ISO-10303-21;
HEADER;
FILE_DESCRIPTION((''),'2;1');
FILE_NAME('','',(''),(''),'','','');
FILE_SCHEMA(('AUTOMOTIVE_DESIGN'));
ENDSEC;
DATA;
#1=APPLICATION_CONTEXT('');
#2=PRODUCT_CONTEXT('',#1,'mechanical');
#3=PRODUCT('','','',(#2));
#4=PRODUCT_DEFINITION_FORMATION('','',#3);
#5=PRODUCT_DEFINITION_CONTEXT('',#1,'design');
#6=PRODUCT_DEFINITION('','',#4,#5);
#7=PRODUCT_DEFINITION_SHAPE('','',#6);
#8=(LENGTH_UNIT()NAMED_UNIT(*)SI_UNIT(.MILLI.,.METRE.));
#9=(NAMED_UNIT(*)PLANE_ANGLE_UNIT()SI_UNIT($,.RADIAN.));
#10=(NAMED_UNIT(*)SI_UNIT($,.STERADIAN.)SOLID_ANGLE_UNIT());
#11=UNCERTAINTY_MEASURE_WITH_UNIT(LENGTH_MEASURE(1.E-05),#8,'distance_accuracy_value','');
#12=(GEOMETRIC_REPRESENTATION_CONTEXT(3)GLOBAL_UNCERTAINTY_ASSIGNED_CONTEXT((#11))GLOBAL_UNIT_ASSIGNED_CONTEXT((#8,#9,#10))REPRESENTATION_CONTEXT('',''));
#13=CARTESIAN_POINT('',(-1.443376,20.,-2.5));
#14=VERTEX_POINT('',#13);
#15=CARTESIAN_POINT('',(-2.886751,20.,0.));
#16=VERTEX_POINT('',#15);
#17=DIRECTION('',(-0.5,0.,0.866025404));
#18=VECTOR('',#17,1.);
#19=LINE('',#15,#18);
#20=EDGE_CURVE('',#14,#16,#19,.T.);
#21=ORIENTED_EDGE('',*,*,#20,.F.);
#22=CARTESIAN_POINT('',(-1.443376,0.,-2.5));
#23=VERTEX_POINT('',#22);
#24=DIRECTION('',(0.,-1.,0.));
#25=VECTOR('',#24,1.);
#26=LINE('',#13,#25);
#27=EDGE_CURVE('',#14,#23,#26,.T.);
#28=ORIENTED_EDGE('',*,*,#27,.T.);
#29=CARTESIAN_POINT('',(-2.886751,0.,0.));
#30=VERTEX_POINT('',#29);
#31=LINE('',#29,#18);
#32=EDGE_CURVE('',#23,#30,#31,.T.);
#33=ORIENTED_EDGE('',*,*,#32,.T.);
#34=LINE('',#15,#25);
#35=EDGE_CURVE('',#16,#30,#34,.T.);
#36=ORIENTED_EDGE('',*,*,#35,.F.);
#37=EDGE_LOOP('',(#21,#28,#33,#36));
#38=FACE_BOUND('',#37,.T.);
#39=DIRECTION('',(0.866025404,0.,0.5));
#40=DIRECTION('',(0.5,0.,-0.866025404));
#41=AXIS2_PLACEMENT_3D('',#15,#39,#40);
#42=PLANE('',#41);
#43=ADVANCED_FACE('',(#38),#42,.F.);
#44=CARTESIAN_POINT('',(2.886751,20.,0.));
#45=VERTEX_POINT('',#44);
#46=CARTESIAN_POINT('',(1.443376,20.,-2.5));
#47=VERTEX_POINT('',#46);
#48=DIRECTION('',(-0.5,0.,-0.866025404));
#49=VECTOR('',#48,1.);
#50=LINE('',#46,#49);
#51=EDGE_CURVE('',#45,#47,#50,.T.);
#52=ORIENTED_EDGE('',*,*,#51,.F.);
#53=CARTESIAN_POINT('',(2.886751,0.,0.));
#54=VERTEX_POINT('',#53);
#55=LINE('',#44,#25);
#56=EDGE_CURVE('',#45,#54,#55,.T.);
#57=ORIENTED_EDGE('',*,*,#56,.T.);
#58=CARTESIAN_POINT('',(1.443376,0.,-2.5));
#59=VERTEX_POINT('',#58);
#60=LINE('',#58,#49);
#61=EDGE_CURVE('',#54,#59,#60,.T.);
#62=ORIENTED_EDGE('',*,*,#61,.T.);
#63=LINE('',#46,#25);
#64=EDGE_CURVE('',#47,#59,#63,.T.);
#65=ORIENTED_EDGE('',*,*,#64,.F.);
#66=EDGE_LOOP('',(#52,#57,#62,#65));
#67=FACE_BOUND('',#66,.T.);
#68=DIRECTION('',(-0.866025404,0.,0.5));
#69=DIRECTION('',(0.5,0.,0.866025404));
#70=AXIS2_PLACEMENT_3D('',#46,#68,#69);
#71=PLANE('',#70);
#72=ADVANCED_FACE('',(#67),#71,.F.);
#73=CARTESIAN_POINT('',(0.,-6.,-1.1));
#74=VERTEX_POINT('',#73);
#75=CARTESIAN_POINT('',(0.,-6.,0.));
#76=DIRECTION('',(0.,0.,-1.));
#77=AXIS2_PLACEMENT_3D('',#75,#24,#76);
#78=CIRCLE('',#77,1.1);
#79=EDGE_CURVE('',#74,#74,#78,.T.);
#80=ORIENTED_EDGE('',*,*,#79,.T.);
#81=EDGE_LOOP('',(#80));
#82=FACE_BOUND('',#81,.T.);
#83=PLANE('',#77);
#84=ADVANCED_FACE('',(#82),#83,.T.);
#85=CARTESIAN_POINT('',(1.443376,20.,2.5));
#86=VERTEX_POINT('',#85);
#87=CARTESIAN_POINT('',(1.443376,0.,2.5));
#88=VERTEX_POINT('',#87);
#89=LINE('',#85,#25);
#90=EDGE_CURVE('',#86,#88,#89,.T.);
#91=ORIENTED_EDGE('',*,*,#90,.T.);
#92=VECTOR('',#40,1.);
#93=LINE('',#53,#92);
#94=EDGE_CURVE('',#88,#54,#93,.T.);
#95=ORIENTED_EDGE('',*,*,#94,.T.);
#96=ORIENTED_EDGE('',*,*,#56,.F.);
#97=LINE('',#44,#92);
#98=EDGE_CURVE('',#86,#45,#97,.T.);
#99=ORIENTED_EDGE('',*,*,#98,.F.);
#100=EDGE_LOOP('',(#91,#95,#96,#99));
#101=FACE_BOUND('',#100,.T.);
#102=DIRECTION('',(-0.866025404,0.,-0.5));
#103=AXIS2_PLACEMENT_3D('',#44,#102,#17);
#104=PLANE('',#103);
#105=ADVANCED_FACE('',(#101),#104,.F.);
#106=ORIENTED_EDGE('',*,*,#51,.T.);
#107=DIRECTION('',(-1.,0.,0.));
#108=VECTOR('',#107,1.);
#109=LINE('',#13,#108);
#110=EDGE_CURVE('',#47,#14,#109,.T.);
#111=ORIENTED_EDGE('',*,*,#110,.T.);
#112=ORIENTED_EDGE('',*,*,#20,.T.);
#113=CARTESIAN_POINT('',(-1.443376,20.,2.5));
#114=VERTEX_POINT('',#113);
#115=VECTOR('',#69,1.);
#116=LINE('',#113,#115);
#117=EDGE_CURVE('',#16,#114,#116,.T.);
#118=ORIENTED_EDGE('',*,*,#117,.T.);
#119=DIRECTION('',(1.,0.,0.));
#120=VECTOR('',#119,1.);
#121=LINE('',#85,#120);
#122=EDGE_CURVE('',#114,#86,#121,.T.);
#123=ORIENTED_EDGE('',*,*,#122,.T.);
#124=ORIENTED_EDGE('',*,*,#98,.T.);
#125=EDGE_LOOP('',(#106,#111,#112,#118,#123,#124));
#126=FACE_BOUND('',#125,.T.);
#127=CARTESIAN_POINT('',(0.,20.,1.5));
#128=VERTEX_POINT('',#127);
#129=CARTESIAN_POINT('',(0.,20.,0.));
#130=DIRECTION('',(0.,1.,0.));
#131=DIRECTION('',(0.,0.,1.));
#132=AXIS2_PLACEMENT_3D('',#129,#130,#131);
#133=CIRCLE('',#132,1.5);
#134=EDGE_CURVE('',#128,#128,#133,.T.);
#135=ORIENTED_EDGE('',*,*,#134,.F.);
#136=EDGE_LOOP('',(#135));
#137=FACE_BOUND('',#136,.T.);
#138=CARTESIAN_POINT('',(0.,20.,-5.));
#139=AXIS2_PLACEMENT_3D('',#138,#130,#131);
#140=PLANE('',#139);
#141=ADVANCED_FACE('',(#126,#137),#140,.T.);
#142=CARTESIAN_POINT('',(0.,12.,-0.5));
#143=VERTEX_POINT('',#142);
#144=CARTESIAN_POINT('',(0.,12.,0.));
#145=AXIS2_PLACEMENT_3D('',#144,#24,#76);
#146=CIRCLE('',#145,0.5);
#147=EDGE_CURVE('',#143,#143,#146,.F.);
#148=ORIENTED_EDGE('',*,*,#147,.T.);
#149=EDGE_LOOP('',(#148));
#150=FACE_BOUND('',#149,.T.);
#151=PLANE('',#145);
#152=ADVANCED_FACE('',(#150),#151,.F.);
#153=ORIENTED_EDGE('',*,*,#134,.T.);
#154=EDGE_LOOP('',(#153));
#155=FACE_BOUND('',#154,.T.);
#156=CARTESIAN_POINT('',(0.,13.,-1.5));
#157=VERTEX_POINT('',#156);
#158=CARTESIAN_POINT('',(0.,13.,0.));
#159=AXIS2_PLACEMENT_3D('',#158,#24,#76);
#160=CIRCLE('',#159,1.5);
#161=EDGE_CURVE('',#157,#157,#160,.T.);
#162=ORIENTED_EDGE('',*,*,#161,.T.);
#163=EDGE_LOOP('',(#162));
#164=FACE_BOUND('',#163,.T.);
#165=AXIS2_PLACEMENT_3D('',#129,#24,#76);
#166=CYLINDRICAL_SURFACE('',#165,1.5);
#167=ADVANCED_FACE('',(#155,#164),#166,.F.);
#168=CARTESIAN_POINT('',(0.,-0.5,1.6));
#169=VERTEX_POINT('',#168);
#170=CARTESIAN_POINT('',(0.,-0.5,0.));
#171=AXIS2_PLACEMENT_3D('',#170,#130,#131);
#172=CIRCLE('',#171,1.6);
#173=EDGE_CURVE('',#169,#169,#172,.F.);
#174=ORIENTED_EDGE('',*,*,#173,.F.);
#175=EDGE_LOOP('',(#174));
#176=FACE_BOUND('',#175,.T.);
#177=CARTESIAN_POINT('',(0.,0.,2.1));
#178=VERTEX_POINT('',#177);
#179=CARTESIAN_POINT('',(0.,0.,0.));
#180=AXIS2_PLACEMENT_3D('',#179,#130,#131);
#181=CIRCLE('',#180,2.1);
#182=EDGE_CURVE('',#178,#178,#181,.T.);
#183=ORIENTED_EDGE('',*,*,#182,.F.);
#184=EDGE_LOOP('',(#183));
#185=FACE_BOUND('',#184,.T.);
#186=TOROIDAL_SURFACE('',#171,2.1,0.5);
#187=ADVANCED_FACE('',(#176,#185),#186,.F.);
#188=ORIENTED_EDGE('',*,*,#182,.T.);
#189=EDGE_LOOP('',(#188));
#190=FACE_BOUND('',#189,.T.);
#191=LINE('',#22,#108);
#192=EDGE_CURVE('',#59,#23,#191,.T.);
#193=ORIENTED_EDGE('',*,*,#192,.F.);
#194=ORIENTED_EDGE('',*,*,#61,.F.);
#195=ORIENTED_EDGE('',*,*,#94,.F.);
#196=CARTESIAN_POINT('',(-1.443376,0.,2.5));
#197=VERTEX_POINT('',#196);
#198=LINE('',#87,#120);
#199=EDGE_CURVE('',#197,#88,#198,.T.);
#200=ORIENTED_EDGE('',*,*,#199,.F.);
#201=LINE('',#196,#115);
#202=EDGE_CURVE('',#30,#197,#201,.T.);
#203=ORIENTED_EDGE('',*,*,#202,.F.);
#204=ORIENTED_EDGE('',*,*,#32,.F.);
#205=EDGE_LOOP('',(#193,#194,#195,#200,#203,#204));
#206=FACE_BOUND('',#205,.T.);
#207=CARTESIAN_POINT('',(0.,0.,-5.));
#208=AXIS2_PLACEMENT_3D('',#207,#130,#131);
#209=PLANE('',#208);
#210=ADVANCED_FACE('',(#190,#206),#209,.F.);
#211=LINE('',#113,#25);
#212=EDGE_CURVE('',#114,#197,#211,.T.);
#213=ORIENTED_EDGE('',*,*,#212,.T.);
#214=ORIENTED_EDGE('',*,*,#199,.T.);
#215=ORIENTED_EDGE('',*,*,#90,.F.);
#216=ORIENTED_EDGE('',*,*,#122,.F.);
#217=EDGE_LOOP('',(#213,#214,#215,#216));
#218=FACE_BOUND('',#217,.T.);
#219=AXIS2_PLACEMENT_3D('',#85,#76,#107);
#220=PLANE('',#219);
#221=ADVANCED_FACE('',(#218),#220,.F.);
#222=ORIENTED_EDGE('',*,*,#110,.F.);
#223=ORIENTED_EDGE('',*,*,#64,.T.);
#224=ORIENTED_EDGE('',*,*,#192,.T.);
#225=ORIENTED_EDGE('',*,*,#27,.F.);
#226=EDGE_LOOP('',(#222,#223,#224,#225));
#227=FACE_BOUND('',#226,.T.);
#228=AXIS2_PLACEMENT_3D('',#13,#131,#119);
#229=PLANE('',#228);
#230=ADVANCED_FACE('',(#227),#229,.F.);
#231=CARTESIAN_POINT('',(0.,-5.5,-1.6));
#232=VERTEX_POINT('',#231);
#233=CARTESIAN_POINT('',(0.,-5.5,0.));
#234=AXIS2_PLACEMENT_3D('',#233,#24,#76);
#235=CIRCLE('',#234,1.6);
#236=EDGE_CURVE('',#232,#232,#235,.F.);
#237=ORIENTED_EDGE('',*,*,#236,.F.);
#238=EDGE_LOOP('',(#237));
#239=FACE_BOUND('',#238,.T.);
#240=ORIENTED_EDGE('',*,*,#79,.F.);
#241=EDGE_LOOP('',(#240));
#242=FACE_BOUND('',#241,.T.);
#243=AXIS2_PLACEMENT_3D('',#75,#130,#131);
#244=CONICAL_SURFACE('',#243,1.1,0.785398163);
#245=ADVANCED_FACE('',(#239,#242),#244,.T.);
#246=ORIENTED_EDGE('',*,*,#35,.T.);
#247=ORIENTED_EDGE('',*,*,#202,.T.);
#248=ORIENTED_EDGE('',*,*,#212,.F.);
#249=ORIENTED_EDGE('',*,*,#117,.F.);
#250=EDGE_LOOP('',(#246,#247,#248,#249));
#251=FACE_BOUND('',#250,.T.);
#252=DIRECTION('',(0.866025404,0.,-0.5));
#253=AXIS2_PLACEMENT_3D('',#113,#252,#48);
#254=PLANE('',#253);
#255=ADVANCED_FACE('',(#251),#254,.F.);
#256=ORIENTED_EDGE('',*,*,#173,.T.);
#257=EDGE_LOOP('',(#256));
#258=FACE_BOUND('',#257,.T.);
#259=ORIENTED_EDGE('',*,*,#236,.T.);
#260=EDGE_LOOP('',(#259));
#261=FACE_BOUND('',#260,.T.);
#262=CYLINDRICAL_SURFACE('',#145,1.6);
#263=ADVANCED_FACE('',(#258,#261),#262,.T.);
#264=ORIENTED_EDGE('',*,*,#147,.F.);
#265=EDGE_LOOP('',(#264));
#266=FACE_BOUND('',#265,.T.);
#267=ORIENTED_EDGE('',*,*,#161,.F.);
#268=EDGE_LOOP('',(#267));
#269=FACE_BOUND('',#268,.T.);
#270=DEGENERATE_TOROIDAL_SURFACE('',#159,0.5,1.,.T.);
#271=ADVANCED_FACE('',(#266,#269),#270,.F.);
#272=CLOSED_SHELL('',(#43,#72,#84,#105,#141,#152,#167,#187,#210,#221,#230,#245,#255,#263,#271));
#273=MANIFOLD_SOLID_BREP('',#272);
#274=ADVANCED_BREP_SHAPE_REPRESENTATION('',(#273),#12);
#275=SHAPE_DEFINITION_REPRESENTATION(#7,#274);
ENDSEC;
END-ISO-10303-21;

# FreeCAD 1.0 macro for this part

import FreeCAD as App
import Part
import Sketcher
from FreeCAD import Vector
Q = App.Units.Quantity


def edges_at(feature, points):
    """Names of the edges that pass closest to the given points."""
    edges = feature.Shape.Edges
    near = lambda p: min(range(len(edges)), key=lambda i: edges[i].distToShape(Part.Vertex(*p))[0])
    return sorted({f"Edge{near(p) + 1}" for p in points})

doc = App.newDocument("Part")
body = doc.addObject("PartDesign::Body", "Body")

sketch1 = doc.addObject("Sketcher::SketchObject", "Sketch")
body.addObject(sketch1)
sketch1.AttachmentSupport = (doc.XZ_Plane, [""])
sketch1.MapMode = "FlatFace"
sketch1.addGeometry([
    Part.LineSegment(Vector(1.4, -2.5, 0), Vector(-1.4, -2.5, 0)),
    Part.LineSegment(Vector(-1.4, -2.5, 0), Vector(-2.9, 0, 0)),
    Part.LineSegment(Vector(-2.9, 0, 0), Vector(-1.4, 2.5, 0)),
    Part.LineSegment(Vector(-1.4, 2.5, 0), Vector(1.4, 2.5, 0)),
    Part.LineSegment(Vector(1.4, 2.5, 0), Vector(2.9, 0, 0)),
    Part.LineSegment(Vector(2.9, 0, 0), Vector(1.4, -2.5, 0)),
    Part.Circle(Vector(0, 0, 0), Vector(0, 0, 1), 1.5),
], False)
sketch1.addConstraint([
    Sketcher.Constraint("Coincident", 0, 2, 1, 1),
    Sketcher.Constraint("Coincident", 1, 2, 2, 1),
    Sketcher.Constraint("Coincident", 2, 2, 3, 1),
    Sketcher.Constraint("Coincident", 3, 2, 4, 1),
    Sketcher.Constraint("Coincident", 4, 2, 5, 1),
    Sketcher.Constraint("Coincident", 5, 2, 0, 1),
    Sketcher.Constraint("Horizontal", 0),
    Sketcher.Constraint("Horizontal", 3),
    Sketcher.Constraint("Coincident", 6, 3, -1, 1),
    Sketcher.Constraint("Symmetric", 0, 2, 3, 2, -1, 1),
    Sketcher.Constraint("Symmetric", 1, 2, 4, 2, -1, 1),
    Sketcher.Constraint("PointOnObject", 1, 2, -1),
    Sketcher.Constraint("Parallel", 2, 5),
    Sketcher.Constraint("Vertical", 0, 2, 2, 2),
    Sketcher.Constraint("Diameter", 6, Q("3 mm")),
    Sketcher.Constraint("Angle", 1, Q("120 deg")),
    Sketcher.Constraint("DistanceY", 0, 2, 2, 2, Q("5 mm")),
    Sketcher.Constraint("DistanceX", 0, 2, 0, 1, Q("2.886751 mm")),
])
pad1 = doc.addObject("PartDesign::Pad", "Pad")
body.addObject(pad1)
pad1.Profile = sketch1
pad1.Length = 20
pad1.Reversed = True

sketch2 = doc.addObject("Sketcher::SketchObject", "Sketch001")
body.addObject(sketch2)
sketch2.AttachmentSupport = (doc.XZ_Plane, [""])
sketch2.MapMode = "FlatFace"
sketch2.addGeometry(Part.Circle(Vector(0, 0, 0), Vector(0, 0, 1), 1.6), False)
sketch2.addConstraint([
    Sketcher.Constraint("Coincident", 0, 3, -1, 1),
    Sketcher.Constraint("Diameter", 0, Q("3.2 mm")),
])
pad2 = doc.addObject("PartDesign::Pad", "Pad001")
body.addObject(pad2)
pad2.Profile = sketch2
pad2.Type = "TwoLengths"
pad2.Length = 6
pad2.Length2 = 12
doc.recompute()

chamfer = doc.addObject("PartDesign::Chamfer", "Chamfer")
body.addObject(chamfer)
chamfer.Base = (pad2, edges_at(pad2, [(0, -6, 1.6)]))
chamfer.Size = 0.5
doc.recompute()

fillet = doc.addObject("PartDesign::Fillet", "Fillet")
body.addObject(fillet)
fillet.Base = (chamfer, edges_at(chamfer, [(0, 0, 1.6)]))
fillet.Radius = 0.5
doc.recompute()

fillet2 = doc.addObject("PartDesign::Fillet", "Fillet001")
body.addObject(fillet2)
fillet2.Base = (fillet, edges_at(fillet, [(0, 12, -1.5)]))
fillet2.Radius = 1

doc.recompute()
